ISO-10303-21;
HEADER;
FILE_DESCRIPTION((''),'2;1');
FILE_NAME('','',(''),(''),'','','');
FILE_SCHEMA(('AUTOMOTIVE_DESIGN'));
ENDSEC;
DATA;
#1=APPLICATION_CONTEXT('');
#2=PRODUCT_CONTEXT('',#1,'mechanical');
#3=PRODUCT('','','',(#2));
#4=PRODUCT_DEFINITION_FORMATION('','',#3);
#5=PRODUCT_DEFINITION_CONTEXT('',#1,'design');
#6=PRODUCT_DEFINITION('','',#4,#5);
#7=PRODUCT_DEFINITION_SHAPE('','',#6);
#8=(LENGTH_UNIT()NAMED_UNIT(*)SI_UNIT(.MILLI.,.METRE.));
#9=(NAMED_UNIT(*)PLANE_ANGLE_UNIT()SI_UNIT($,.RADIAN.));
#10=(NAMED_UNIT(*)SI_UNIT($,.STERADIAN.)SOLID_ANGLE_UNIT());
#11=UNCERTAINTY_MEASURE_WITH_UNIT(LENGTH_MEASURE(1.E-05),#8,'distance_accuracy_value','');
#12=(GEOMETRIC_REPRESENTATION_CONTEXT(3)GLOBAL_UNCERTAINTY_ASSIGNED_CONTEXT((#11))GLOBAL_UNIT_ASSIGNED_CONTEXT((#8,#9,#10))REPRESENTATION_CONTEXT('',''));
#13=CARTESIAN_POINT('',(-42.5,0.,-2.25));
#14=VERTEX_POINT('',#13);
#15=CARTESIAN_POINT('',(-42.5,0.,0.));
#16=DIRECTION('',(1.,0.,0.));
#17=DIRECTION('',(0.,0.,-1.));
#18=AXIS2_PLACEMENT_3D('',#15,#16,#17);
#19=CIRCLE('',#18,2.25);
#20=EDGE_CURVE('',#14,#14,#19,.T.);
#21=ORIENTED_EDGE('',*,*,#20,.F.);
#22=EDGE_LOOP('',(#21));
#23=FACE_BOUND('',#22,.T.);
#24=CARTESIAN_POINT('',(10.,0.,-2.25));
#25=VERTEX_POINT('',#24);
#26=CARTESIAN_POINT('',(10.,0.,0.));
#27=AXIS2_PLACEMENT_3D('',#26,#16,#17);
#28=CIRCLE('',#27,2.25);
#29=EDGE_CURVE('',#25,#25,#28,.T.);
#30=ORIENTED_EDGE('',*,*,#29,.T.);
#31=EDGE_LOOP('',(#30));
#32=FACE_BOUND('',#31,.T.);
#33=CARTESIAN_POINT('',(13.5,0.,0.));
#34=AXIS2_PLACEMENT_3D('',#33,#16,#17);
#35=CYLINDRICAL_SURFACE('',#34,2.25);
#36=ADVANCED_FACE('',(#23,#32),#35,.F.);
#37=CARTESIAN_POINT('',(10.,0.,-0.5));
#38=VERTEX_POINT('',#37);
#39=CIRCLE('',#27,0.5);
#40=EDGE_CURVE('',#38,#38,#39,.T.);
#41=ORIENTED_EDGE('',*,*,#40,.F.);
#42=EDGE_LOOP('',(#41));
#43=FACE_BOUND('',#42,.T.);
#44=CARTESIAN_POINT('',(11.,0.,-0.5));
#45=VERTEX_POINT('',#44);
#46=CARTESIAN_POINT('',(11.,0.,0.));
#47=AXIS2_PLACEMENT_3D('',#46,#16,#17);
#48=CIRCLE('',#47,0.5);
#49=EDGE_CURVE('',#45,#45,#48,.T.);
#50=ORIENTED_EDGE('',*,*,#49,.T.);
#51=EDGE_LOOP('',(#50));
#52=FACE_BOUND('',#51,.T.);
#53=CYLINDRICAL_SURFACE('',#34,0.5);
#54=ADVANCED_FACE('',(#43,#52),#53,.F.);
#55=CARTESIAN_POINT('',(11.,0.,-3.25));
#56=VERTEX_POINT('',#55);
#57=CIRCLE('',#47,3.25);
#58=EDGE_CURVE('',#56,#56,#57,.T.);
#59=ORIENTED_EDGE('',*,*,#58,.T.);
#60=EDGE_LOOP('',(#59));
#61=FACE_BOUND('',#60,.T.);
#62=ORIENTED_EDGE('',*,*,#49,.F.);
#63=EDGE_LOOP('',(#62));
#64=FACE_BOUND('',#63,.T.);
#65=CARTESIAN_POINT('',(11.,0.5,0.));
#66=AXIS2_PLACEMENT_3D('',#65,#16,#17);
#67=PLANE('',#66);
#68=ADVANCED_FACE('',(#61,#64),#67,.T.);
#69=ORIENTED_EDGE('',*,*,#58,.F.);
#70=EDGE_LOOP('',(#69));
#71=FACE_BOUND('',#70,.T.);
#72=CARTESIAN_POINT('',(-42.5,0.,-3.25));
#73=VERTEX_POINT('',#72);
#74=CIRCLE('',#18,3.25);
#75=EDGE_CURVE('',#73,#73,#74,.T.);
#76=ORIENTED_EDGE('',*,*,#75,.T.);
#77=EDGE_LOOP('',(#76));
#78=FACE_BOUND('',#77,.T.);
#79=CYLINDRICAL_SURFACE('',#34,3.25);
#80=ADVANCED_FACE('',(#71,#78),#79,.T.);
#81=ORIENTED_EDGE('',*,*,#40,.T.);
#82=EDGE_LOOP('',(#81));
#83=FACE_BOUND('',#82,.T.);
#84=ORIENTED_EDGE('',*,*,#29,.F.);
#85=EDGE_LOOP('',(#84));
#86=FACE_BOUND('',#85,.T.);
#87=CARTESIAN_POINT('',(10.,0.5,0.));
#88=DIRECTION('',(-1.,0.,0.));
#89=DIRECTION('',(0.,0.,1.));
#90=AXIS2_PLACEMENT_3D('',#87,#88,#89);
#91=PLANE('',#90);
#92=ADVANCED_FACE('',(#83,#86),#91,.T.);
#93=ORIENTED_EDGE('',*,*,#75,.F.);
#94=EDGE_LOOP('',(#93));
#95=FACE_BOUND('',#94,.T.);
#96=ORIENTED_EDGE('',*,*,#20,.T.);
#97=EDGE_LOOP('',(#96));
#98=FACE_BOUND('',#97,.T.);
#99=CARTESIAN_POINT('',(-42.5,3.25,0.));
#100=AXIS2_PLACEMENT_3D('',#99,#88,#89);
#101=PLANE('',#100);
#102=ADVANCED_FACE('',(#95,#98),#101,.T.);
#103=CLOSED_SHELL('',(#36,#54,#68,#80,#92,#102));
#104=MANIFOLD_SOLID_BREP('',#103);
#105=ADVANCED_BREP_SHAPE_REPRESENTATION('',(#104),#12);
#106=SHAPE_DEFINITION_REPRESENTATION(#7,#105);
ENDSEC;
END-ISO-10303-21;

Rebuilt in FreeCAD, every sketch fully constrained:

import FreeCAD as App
import Part
import Sketcher

V = App.Vector


def add_polygon(sketch, points):
    """Adds a closed chain of lines whose ends are joined by coincident constraints."""
    first, n = sketch.GeometryCount, len(points)
    for a, b in zip(points, points[1:] + points[:1]):
        sketch.addGeometry(Part.LineSegment(App.Vector(*a, 0), App.Vector(*b, 0)), False)
    for i in range(n):
        sketch.addConstraint(Sketcher.Constraint("Coincident", first + i, 2, first + (i + 1) % n, 1))

doc = App.newDocument("Part")
body = doc.addObject("PartDesign::Body", "Body")

# Sketch on XY plane
sketch1 = body.newObject("Sketcher::SketchObject", "Sketch")
sketch1.AttachmentSupport = (doc.getObject("XY_Plane"), [""])
sketch1.MapMode = "FlatFace"
add_polygon(sketch1, [(11, 0.5), (11, 3.25), (-42.5, 3.25), (-42.5, 2.25), (10, 2.25), (10, 0.5)])  # lines 0-5
sketch1.addConstraint(Sketcher.Constraint("Vertical", 0))
sketch1.addConstraint(Sketcher.Constraint("Horizontal", 1))
sketch1.addConstraint(Sketcher.Constraint("Vertical", 2))
sketch1.addConstraint(Sketcher.Constraint("Horizontal", 3))
sketch1.addConstraint(Sketcher.Constraint("Vertical", 4))
sketch1.addConstraint(Sketcher.Constraint("Horizontal", 5))
sketch1.addConstraint(Sketcher.Constraint("Equal", 5, 2))
sketch1.addConstraint(Sketcher.Constraint("DistanceX", 5, 1, 5, 2, 1.0))
sketch1.addConstraint(Sketcher.Constraint("DistanceX", 1, 2, 1, 1, 53.5))
sketch1.addConstraint(Sketcher.Constraint("DistanceX", -1, 1, 0, 2, 11.0))
sketch1.addConstraint(Sketcher.Constraint("DistanceY", 0, 1, 0, 2, 2.75))
sketch1.addConstraint(Sketcher.Constraint("DistanceY", -1, 1, 4, 2, 0.5))
revolution = body.newObject("PartDesign::Revolution", "Revolution")
revolution.Profile = sketch1
revolution.ReferenceAxis = (sketch1, ["H_Axis"])
revolution.Angle = 360

doc.recompute()
